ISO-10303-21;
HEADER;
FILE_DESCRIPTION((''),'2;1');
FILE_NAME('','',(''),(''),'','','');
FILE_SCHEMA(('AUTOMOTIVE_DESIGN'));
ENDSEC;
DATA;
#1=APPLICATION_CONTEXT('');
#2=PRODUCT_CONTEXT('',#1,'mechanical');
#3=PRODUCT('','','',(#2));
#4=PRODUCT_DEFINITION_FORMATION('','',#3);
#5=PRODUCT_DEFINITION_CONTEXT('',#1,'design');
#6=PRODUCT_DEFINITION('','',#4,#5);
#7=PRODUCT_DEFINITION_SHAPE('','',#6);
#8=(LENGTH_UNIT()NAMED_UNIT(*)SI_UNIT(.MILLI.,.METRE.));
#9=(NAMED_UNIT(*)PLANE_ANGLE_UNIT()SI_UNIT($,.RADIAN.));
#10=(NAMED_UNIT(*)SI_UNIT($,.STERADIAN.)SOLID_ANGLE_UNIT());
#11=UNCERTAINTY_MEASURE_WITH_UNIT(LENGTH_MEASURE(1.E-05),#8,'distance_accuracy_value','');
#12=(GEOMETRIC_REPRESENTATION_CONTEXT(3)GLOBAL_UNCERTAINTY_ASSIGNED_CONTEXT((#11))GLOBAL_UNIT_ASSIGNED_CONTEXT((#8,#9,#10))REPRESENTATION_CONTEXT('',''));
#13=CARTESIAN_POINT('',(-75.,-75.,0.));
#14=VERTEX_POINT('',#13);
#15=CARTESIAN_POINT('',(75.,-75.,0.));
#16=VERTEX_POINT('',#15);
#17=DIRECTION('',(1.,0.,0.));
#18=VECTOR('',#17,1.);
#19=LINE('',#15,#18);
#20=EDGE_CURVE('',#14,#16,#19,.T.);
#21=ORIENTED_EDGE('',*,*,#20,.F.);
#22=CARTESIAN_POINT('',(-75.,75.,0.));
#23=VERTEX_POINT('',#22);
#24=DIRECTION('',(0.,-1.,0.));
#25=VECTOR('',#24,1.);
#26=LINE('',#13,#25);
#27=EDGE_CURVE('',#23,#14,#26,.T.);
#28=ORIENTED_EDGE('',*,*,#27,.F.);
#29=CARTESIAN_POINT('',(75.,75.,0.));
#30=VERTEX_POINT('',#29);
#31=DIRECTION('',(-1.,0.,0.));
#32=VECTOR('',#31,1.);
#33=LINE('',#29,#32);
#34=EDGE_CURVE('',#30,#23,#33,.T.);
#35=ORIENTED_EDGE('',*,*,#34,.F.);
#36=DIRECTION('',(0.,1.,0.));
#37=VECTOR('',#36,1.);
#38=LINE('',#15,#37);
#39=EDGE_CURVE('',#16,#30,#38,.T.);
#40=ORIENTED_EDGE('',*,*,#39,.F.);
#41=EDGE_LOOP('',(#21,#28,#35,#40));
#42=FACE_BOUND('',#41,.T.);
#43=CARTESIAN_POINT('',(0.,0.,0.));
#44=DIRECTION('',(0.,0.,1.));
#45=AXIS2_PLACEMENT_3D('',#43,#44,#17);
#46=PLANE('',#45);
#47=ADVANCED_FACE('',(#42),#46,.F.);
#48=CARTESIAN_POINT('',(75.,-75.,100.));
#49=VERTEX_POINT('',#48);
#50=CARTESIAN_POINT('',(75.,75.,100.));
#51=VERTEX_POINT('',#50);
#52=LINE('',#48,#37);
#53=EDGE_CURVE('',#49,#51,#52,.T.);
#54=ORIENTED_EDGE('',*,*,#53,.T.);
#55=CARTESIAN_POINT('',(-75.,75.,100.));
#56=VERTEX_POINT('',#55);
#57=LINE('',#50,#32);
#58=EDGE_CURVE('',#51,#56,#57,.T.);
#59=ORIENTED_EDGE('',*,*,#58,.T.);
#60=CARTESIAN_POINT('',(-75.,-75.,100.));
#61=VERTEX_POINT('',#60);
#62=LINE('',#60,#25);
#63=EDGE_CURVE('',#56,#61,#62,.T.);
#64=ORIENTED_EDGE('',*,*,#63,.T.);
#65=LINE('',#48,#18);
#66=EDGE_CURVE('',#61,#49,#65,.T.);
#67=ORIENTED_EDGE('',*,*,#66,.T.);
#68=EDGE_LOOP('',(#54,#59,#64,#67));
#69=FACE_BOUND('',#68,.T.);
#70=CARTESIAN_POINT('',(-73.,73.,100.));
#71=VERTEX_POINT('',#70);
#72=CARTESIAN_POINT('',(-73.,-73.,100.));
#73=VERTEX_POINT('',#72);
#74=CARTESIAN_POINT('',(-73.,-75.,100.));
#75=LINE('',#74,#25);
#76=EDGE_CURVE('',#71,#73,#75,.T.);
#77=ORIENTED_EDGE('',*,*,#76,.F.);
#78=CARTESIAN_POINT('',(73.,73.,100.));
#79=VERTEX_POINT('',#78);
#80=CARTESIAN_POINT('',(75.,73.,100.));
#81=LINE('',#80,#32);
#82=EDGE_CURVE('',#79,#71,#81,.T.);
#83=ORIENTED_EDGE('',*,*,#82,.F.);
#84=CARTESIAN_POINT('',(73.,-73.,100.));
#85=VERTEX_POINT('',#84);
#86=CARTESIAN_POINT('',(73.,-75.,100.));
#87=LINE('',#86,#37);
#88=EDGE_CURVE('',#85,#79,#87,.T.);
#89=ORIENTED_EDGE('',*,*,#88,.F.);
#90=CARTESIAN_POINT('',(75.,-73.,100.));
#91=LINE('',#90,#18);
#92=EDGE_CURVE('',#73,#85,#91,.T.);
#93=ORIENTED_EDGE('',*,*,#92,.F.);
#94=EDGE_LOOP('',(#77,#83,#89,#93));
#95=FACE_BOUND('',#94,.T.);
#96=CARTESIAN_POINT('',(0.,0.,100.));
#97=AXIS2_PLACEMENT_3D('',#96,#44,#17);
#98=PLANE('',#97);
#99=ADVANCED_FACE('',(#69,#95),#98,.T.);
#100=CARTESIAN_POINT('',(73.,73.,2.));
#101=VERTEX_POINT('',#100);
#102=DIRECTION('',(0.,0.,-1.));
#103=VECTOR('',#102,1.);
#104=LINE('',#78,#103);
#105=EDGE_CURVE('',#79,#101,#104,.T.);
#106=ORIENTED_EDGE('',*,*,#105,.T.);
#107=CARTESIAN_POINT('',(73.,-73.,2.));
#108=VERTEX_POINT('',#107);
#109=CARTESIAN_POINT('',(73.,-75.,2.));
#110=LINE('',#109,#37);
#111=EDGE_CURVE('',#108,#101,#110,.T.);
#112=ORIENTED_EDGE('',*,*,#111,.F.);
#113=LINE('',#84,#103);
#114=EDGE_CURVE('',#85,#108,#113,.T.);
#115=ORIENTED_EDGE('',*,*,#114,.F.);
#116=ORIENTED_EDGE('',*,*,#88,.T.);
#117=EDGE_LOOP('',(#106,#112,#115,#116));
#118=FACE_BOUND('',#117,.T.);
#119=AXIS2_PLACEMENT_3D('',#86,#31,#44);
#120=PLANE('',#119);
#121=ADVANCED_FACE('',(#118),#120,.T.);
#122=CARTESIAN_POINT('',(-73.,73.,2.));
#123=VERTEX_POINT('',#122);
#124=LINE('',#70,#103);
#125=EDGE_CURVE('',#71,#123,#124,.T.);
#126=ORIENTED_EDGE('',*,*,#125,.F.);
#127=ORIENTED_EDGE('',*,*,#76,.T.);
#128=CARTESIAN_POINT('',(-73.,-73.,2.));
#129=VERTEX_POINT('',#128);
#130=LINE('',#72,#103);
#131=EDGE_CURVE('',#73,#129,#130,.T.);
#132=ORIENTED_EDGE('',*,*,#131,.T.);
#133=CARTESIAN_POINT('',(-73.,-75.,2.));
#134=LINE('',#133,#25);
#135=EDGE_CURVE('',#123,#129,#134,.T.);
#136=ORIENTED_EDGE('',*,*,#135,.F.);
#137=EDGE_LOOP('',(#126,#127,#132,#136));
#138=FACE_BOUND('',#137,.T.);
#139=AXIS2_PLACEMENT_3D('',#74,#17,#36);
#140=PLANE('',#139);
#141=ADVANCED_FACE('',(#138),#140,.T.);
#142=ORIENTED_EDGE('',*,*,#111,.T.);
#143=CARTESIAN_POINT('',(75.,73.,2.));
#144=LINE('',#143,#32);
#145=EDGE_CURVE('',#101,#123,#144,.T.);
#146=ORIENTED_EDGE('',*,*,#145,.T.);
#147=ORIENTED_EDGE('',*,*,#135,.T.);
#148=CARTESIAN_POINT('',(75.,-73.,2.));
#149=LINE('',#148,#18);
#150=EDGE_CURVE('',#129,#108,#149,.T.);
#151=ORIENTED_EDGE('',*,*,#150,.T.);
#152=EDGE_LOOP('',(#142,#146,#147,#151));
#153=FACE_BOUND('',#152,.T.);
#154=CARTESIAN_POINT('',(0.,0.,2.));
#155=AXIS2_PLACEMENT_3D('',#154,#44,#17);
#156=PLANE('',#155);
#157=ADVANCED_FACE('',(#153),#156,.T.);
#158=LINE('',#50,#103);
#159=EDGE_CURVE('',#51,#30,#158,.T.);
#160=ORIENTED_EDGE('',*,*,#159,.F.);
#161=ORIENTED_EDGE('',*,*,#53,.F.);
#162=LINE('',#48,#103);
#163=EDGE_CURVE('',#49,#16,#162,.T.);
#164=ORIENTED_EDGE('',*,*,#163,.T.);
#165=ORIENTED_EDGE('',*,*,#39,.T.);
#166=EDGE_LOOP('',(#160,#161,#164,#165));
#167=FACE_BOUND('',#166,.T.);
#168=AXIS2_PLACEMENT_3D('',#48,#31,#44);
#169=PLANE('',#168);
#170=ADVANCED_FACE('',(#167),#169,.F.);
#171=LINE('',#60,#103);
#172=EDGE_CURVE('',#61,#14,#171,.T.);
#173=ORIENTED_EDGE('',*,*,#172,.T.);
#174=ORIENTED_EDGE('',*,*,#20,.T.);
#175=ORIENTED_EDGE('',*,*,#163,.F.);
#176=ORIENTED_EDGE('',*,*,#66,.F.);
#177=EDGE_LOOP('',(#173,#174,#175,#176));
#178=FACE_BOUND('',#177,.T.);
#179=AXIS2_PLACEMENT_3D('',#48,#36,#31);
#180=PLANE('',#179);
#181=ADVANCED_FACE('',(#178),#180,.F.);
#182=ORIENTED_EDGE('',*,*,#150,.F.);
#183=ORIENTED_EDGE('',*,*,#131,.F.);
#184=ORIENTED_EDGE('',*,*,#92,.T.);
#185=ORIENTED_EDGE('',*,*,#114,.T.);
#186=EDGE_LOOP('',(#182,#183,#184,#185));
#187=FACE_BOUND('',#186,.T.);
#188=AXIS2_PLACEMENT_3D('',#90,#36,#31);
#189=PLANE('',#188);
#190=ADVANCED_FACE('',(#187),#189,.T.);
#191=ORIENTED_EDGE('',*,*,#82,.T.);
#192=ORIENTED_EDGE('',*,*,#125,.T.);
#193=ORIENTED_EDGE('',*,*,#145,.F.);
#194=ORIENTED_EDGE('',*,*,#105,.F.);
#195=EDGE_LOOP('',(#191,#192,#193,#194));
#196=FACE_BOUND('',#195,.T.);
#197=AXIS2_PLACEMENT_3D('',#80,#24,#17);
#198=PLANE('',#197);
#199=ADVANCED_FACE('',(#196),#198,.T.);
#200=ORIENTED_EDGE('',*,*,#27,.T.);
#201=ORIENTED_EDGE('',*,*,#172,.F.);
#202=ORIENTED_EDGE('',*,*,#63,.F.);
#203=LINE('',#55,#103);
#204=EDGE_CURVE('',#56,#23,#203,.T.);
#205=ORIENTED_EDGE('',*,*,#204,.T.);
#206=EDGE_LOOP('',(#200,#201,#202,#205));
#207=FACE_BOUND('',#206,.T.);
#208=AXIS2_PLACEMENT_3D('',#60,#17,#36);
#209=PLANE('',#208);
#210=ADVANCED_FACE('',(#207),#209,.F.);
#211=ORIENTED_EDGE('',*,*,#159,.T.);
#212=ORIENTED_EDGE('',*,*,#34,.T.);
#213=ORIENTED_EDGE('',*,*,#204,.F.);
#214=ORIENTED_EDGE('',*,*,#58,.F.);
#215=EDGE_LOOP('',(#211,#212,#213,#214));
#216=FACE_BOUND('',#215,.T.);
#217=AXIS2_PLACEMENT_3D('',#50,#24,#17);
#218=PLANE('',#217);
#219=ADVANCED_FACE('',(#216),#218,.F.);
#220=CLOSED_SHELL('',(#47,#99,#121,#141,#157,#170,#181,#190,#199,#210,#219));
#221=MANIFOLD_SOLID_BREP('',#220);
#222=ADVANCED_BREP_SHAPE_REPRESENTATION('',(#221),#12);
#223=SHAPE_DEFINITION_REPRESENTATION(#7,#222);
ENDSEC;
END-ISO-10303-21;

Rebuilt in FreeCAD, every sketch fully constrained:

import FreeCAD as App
import Part
import Sketcher
Q = App.Units.Quantity


def faces_at(feature, points):
    """Names of the faces that lie closest to the given points."""
    faces = feature.Shape.Faces
    near = lambda p: min(range(len(faces)), key=lambda i: faces[i].distToShape(Part.Vertex(*p))[0])
    return sorted({f"Face{near(p) + 1}" for p in points})

doc = App.newDocument("Part")
body = doc.addObject("PartDesign::Body", "Body")

sketch1 = body.newObject("Sketcher::SketchObject", "Sketch")
sketch1.AttachmentSupport = (doc.getObject("XY_Plane"), [""])
sketch1.MapMode = "FlatFace"
sketch1.addGeometry([
    Part.LineSegment(App.Vector(-75, 75, 0), App.Vector(-75, -75, 0)),
    Part.LineSegment(App.Vector(-75, -75, 0), App.Vector(75, -75, 0)),
    Part.LineSegment(App.Vector(75, -75, 0), App.Vector(75, 75, 0)),
    Part.LineSegment(App.Vector(75, 75, 0), App.Vector(-75, 75, 0)),
], False)
sketch1.addConstraint([
    Sketcher.Constraint("Coincident", 0, 2, 1, 1),
    Sketcher.Constraint("Coincident", 1, 2, 2, 1),
    Sketcher.Constraint("Coincident", 2, 2, 3, 1),
    Sketcher.Constraint("Coincident", 3, 2, 0, 1),
    Sketcher.Constraint("Vertical", 0),
    Sketcher.Constraint("Horizontal", 1),
    Sketcher.Constraint("Vertical", 2),
    Sketcher.Constraint("Horizontal", 3),
    Sketcher.Constraint("Symmetric", 0, 2, 2, 2, -1, 1),
    Sketcher.Constraint("Equal", 3, 0),
    Sketcher.Constraint("DistanceX", 1, 1, 1, 2, Q("150 mm")),
])
pad1 = body.newObject("PartDesign::Pad", "Pad")
pad1.Profile = sketch1
pad1.Length = 100
doc.recompute()

thickness = body.newObject("PartDesign::Thickness", "Thickness")
thickness.Base = (pad1, faces_at(pad1, [(0, 0, 100)]))
thickness.Value = 2
thickness.Reversed = True
thickness.Join = "Intersection"

doc.recompute()
